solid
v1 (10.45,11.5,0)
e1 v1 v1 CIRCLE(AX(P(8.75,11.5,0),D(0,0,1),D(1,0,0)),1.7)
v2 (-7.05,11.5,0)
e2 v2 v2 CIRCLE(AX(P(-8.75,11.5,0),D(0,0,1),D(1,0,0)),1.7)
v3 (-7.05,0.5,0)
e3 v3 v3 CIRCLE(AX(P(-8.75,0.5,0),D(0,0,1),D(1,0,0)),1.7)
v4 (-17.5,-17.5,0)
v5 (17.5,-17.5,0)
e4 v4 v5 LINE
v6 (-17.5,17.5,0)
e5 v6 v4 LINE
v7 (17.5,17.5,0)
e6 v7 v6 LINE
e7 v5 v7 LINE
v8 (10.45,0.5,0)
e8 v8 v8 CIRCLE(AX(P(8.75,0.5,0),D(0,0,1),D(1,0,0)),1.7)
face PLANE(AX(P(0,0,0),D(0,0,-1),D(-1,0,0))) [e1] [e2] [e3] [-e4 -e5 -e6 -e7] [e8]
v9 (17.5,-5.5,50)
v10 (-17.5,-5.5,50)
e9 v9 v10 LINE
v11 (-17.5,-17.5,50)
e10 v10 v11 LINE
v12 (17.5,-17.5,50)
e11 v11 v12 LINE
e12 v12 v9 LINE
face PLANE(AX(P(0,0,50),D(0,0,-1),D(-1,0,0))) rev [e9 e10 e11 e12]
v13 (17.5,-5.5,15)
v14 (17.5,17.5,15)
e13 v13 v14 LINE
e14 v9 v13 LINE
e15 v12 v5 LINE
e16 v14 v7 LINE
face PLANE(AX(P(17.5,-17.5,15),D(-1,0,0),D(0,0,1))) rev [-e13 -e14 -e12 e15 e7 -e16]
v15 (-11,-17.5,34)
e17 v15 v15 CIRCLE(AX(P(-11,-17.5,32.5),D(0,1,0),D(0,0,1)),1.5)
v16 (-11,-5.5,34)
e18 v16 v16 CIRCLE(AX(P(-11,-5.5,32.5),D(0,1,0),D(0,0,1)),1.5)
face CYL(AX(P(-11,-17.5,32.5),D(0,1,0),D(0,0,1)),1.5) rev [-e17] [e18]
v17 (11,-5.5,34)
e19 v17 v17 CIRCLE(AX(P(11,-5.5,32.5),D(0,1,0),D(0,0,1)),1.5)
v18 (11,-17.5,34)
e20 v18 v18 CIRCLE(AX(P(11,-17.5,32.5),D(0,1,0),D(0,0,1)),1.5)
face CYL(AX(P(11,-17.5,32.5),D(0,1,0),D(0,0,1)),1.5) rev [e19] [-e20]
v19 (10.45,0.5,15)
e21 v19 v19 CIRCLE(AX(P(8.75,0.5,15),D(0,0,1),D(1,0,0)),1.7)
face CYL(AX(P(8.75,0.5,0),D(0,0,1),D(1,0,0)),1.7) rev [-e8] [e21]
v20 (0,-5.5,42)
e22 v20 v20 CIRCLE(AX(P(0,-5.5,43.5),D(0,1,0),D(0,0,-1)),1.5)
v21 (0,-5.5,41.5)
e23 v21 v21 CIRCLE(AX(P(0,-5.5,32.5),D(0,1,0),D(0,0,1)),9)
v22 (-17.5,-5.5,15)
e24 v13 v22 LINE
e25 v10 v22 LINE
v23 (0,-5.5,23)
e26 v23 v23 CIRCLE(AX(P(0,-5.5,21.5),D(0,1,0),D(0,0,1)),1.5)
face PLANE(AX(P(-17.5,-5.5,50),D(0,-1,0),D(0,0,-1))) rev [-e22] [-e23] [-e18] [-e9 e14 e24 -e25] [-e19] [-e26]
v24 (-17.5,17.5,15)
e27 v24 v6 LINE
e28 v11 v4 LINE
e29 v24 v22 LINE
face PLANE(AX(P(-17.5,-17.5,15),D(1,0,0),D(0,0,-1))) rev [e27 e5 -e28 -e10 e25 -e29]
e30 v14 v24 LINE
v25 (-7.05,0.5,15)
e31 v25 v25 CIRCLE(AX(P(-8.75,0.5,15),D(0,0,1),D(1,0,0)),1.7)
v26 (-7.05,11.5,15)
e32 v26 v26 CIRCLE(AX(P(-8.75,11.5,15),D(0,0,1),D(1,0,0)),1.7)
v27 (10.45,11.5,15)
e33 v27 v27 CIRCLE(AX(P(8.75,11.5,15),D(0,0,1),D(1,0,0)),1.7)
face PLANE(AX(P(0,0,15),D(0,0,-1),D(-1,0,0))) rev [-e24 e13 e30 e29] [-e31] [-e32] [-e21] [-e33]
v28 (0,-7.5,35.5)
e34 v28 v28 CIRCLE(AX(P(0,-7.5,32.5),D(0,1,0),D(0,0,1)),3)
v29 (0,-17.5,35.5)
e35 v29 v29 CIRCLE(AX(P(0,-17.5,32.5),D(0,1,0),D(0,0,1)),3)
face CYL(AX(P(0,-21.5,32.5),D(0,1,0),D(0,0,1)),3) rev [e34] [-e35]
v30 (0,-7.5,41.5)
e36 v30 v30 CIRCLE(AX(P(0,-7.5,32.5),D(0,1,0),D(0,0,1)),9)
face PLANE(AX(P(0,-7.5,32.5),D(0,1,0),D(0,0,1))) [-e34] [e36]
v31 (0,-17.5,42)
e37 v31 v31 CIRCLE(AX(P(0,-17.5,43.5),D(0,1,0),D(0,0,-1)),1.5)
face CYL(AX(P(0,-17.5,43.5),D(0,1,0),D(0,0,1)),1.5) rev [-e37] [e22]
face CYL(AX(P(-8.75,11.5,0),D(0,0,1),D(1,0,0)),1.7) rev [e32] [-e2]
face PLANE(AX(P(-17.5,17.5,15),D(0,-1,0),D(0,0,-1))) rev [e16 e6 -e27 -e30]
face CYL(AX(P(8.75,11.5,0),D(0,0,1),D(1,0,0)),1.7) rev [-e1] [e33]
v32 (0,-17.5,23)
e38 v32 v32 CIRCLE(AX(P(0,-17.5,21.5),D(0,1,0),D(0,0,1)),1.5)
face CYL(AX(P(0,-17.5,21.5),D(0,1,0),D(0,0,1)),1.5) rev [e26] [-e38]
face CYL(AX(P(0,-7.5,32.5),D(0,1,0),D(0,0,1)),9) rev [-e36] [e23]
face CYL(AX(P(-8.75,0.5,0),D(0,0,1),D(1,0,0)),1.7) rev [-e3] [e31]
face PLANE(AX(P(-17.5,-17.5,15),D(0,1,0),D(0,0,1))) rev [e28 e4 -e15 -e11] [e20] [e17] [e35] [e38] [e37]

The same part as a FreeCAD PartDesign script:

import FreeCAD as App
import Part
import Sketcher
Q = App.Units.Quantity

doc = App.newDocument("Part")
params = doc.addObject("Spreadsheet::Sheet", "Params")
for row, (alias, value) in enumerate([
    ("sketch1_width", "35 mm"),
    ("pad1_length", "15 mm"),
    ("sketch2_width", "35 mm"),
    ("sketch2_height", "12 mm"),
    ("pad2_length", "35 mm"),
    ("sketch3_diameter", "18 mm"),
    ("pocket1_length", "2 mm"),
    ("sketch4_diameter", "6 mm"),
    ("pocket2_length", "14 mm"),
    ("sketch5_diameter", "3 mm"),
    ("sketch6_diameter", "3.4 mm"),
], start=1):
    params.set(f"A{row}", alias)
    params.set(f"B{row}", "=" + value)
    params.setAlias(f"B{row}", alias)

body = doc.addObject("PartDesign::Body", "Body")

# Sketch on XY plane
sketch1 = doc.addObject("Sketcher::SketchObject", "Sketch")
body.addObject(sketch1)
sketch1.AttachmentSupport = (doc.XY_Plane, [""])
sketch1.MapMode = "FlatFace"
sketch1.addGeometry([
    Part.LineSegment(App.Vector(-18, 18, 0), App.Vector(-18, -18, 0)),
    Part.LineSegment(App.Vector(-18, -18, 0), App.Vector(18, -18, 0)),
    Part.LineSegment(App.Vector(18, -18, 0), App.Vector(18, 18, 0)),
    Part.LineSegment(App.Vector(18, 18, 0), App.Vector(-18, 18, 0)),
], False)
sketch1.addConstraint([
    Sketcher.Constraint("Coincident", 0, 2, 1, 1),
    Sketcher.Constraint("Coincident", 1, 2, 2, 1),
    Sketcher.Constraint("Coincident", 2, 2, 3, 1),
    Sketcher.Constraint("Coincident", 3, 2, 0, 1),
    Sketcher.Constraint("Vertical", 0),
    Sketcher.Constraint("Horizontal", 1),
    Sketcher.Constraint("Vertical", 2),
    Sketcher.Constraint("Horizontal", 3),
    Sketcher.Constraint("Symmetric", 0, 2, 2, 2, -1, 1),
    Sketcher.Constraint("Equal", 3, 0),
    Sketcher.Constraint("DistanceX", 1, 1, 1, 2, Q("35 mm")),
])
sketch1.setExpression("Constraints[10]", "Params.sketch1_width")
pad1 = doc.addObject("PartDesign::Pad", "Pad")
body.addObject(pad1)
pad1.Profile = sketch1
pad1.setExpression("Length", "Params.pad1_length")

# Sketch on XY plane
sketch2 = doc.addObject("Sketcher::SketchObject", "Sketch001")
body.addObject(sketch2)
sketch2.AttachmentSupport = (doc.XY_Plane, [""])
sketch2.MapMode = "FlatFace"
sketch2.AttachmentOffset = App.Placement(App.Vector(0, 0, 15), App.Rotation())
sketch2.addGeometry([
    Part.LineSegment(App.Vector(-18, -6, 0), App.Vector(-18, -18, 0)),
    Part.LineSegment(App.Vector(-18, -18, 0), App.Vector(18, -18, 0)),
    Part.LineSegment(App.Vector(18, -18, 0), App.Vector(18, -6, 0)),
    Part.LineSegment(App.Vector(18, -6, 0), App.Vector(-18, -6, 0)),
], False)
sketch2.addConstraint([
    Sketcher.Constraint("Coincident", 0, 2, 1, 1),
    Sketcher.Constraint("Coincident", 1, 2, 2, 1),
    Sketcher.Constraint("Coincident", 2, 2, 3, 1),
    Sketcher.Constraint("Coincident", 3, 2, 0, 1),
    Sketcher.Constraint("Vertical", 0),
    Sketcher.Constraint("Horizontal", 1),
    Sketcher.Constraint("Vertical", 2),
    Sketcher.Constraint("Horizontal", 3),
    Sketcher.Constraint("DistanceX", 1, 1, 1, 2, Q("35 mm")),
    Sketcher.Constraint("DistanceY", 0, 2, 0, 1, Q("12 mm")),
    Sketcher.Constraint("DistanceX", 0, 2, -1, 1, Q("17.5 mm")),
    Sketcher.Constraint("DistanceY", 0, 2, -1, 1, Q("17.5 mm")),
])
sketch2.setExpression("Constraints[8]", "Params.sketch2_width")
sketch2.setExpression("Constraints[9]", "Params.sketch2_height")
pad2 = doc.addObject("PartDesign::Pad", "Pad001")
body.addObject(pad2)
pad2.Profile = sketch2
pad2.setExpression("Length", "Params.pad2_length")

# Sketch on XZ plane
sketch3 = doc.addObject("Sketcher::SketchObject", "Sketch002")
body.addObject(sketch3)
sketch3.AttachmentSupport = (doc.XZ_Plane, [""])
sketch3.MapMode = "FlatFace"
sketch3.AttachmentOffset = App.Placement(App.Vector(0, 0, 5.5), App.Rotation())
sketch3.addGeometry(Part.Circle(App.Vector(0, 32, 0), App.Vector(0, 0, 1), 9), False)
sketch3.addConstraint([
    Sketcher.Constraint("PointOnObject", 0, 3, -2),
    Sketcher.Constraint("Diameter", 0, Q("18 mm")),
    Sketcher.Constraint("DistanceY", -1, 1, 0, 3, Q("32.5 mm")),
])
sketch3.setExpression("Constraints[1]", "Params.sketch3_diameter")
pocket1 = doc.addObject("PartDesign::Pocket", "Pocket")
body.addObject(pocket1)
pocket1.Profile = sketch3
pocket1.setExpression("Length", "Params.pocket1_length")
pocket1.Reversed = True

# Sketch on XZ plane
sketch4 = doc.addObject("Sketcher::SketchObject", "Sketch003")
body.addObject(sketch4)
sketch4.AttachmentSupport = (doc.XZ_Plane, [""])
sketch4.MapMode = "FlatFace"
sketch4.AttachmentOffset = App.Placement(App.Vector(0, 0, 7.5), App.Rotation())
sketch4.addGeometry(Part.Circle(App.Vector(0, 32.5, 0), App.Vector(0, 0, 1), 3), False)
sketch4.addConstraint([
    Sketcher.Constraint("PointOnObject", 0, 3, -2),
    Sketcher.Constraint("Diameter", 0, Q("6 mm")),
    Sketcher.Constraint("DistanceY", -1, 1, 0, 3, Q("32.5 mm")),
])
sketch4.setExpression("Constraints[1]", "Params.sketch4_diameter")
pocket2 = doc.addObject("PartDesign::Pocket", "Pocket001")
body.addObject(pocket2)
pocket2.Profile = sketch4
pocket2.setExpression("Length", "Params.pocket2_length")
pocket2.Reversed = True

# Sketch on XZ plane
sketch5 = doc.addObject("Sketcher::SketchObject", "Sketch004")
body.addObject(sketch5)
sketch5.AttachmentSupport = (doc.XZ_Plane, [""])
sketch5.MapMode = "FlatFace"
sketch5.AttachmentOffset = App.Placement(App.Vector(0, 0, 5.5), App.Rotation())
sketch5.addGeometry([
    Part.Circle(App.Vector(0, 21.5, 0), App.Vector(0, 0, 1), 1.5),
    Part.Circle(App.Vector(0, 43.5, 0), App.Vector(0, 0, 1), 1.5),
    Part.Circle(App.Vector(-11, 32.5, 0), App.Vector(0, 0, 1), 1.5),
    Part.Circle(App.Vector(11, 32.5, 0), App.Vector(0, 0, 1), 1.5),
], False)
sketch5.addConstraint([
    Sketcher.Constraint("Equal", 0, 1),
    Sketcher.Constraint("Equal", 1, 2),
    Sketcher.Constraint("Equal", 2, 3),
    Sketcher.Constraint("Symmetric", 2, 3, 3, 3, -2),
    Sketcher.Constraint("PointOnObject", 0, 3, -2),
    Sketcher.Constraint("PointOnObject", 1, 3, -2),
    Sketcher.Constraint("Diameter", 0, Q("3 mm")),
    Sketcher.Constraint("DistanceX", 2, 3, -1, 1, Q("11 mm")),
    Sketcher.Constraint("DistanceY", 0, 3, 1, 3, Q("22 mm")),
    Sketcher.Constraint("DistanceY", 0, 3, 2, 3, Q("11 mm")),
    Sketcher.Constraint("DistanceY", -1, 1, 0, 3, Q("21.5 mm")),
])
sketch5.setExpression("Constraints[6]", "Params.sketch5_diameter")
pocket3 = doc.addObject("PartDesign::Pocket", "Pocket002")
body.addObject(pocket3)
pocket3.Profile = sketch5
pocket3.Type = "ThroughAll"
pocket3.Reversed = True

# Sketch on XY plane
sketch6 = doc.addObject("Sketcher::SketchObject", "Sketch005")
body.addObject(sketch6)
sketch6.AttachmentSupport = (doc.XY_Plane, [""])
sketch6.MapMode = "FlatFace"
sketch6.AttachmentOffset = App.Placement(App.Vector(0, 0, 15), App.Rotation())
sketch6.addGeometry([
    Part.Circle(App.Vector(-8.8, 0.5, 0), App.Vector(0, 0, 1), 1.7),
    Part.Circle(App.Vector(8.8, 0.5, 0), App.Vector(0, 0, 1), 1.7),
    Part.Circle(App.Vector(8.8, 11.5, 0), App.Vector(0, 0, 1), 1.7),
    Part.Circle(App.Vector(-8.8, 11.5, 0), App.Vector(0, 0, 1), 1.7),
], False)
sketch6.addConstraint([
    Sketcher.Constraint("Equal", 0, 1),
    Sketcher.Constraint("Equal", 1, 2),
    Sketcher.Constraint("Equal", 2, 3),
    Sketcher.Constraint("Symmetric", 0, 3, 1, 3, -2),
    Sketcher.Constraint("Symmetric", 2, 3, 3, 3, -2),
    Sketcher.Constraint("Vertical", 1, 3, 2, 3),
    Sketcher.Constraint("Diameter", 0, Q("3.4 mm")),
    Sketcher.Constraint("DistanceY", 1, 3, 2, 3, Q("11 mm")),
    Sketcher.Constraint("DistanceY", -1, 1, 0, 3, Q("0.5 mm")),
    Sketcher.Constraint("DistanceX", 0, 3, 1, 3, Q("17.5 mm")),
])
sketch6.setExpression("Constraints[6]", "Params.sketch6_diameter")
pocket4 = doc.addObject("PartDesign::Pocket", "Pocket003")
body.addObject(pocket4)
pocket4.Profile = sketch6
pocket4.Type = "ThroughAll"

doc.recompute()
